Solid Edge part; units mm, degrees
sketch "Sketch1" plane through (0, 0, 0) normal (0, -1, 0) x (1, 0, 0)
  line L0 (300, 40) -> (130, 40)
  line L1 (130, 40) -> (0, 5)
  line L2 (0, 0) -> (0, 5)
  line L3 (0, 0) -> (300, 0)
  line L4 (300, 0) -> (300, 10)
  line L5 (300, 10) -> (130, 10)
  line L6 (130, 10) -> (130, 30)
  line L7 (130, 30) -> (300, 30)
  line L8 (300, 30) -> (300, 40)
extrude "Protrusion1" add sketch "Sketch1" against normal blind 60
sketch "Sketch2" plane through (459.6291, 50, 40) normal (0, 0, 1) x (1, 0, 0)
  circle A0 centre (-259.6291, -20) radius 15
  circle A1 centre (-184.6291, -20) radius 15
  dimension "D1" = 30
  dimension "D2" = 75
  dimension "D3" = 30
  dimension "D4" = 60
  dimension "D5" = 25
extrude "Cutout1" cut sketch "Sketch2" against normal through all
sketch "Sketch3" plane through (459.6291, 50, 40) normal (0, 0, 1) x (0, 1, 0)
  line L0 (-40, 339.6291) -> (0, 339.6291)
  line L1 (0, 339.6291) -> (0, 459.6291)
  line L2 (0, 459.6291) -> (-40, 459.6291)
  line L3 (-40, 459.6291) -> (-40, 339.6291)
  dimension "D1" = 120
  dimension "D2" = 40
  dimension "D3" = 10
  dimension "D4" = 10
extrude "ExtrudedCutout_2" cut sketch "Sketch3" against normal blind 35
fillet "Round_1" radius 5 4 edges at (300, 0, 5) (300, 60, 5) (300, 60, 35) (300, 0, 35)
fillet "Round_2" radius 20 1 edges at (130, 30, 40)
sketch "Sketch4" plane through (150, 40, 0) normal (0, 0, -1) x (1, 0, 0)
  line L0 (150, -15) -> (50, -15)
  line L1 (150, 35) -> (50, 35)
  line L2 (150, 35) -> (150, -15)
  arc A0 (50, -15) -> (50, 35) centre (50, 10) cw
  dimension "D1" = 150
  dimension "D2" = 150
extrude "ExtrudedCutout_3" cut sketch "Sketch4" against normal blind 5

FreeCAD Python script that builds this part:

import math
import FreeCAD as App
import Part
import Sketcher


def edges_at(feature, points):
    """Names of the edges that pass closest to the given points."""
    edges = feature.Shape.Edges
    near = lambda p: min(range(len(edges)), key=lambda i: edges[i].distToShape(Part.Vertex(*p))[0])
    return sorted({f"Edge{near(p) + 1}" for p in points})

doc = App.newDocument("Part")
body = doc.addObject("PartDesign::Body", "Body")

# Sketch on XZ plane
sketch1 = body.newObject("Sketcher::SketchObject", "Sketch")
sketch1.AttachmentSupport = (doc.getObject("XZ_Plane"), [""])
sketch1.MapMode = "FlatFace"
sketch1.addGeometry(Part.LineSegment(App.Vector(300, 30, 0), App.Vector(300, 40, 0)), False)
sketch1.addGeometry(Part.LineSegment(App.Vector(300, 40, 0), App.Vector(130, 40, 0)), False)
sketch1.addGeometry(Part.LineSegment(App.Vector(130, 40, 0), App.Vector(0, 5, 0)), False)
sketch1.addGeometry(Part.LineSegment(App.Vector(0, 5, 0), App.Vector(0, 0, 0)), False)
sketch1.addGeometry(Part.LineSegment(App.Vector(0, 0, 0), App.Vector(300, 0, 0)), False)
sketch1.addGeometry(Part.LineSegment(App.Vector(300, 0, 0), App.Vector(300, 10, 0)), False)
sketch1.addGeometry(Part.LineSegment(App.Vector(300, 10, 0), App.Vector(130, 10, 0)), False)
sketch1.addGeometry(Part.LineSegment(App.Vector(130, 10, 0), App.Vector(130, 30, 0)), False)
sketch1.addGeometry(Part.LineSegment(App.Vector(130, 30, 0), App.Vector(300, 30, 0)), False)
sketch1.addConstraint(Sketcher.Constraint("Coincident", 0, 2, 1, 1))
sketch1.addConstraint(Sketcher.Constraint("Coincident", 1, 2, 2, 1))
sketch1.addConstraint(Sketcher.Constraint("Coincident", 2, 2, 3, 1))
sketch1.addConstraint(Sketcher.Constraint("Coincident", 3, 2, 4, 1))
sketch1.addConstraint(Sketcher.Constraint("Coincident", 4, 2, 5, 1))
sketch1.addConstraint(Sketcher.Constraint("Coincident", 5, 2, 6, 1))
sketch1.addConstraint(Sketcher.Constraint("Coincident", 6, 2, 7, 1))
sketch1.addConstraint(Sketcher.Constraint("Coincident", 7, 2, 8, 1))
sketch1.addConstraint(Sketcher.Constraint("Coincident", 8, 2, 0, 1))
sketch1.addConstraint(Sketcher.Constraint("Vertical", 0))
sketch1.addConstraint(Sketcher.Constraint("Horizontal", 1))
sketch1.addConstraint(Sketcher.Constraint("Vertical", 3))
sketch1.addConstraint(Sketcher.Constraint("Horizontal", 4))
sketch1.addConstraint(Sketcher.Constraint("Vertical", 5))
sketch1.addConstraint(Sketcher.Constraint("Horizontal", 6))
sketch1.addConstraint(Sketcher.Constraint("Vertical", 7))
sketch1.addConstraint(Sketcher.Constraint("Horizontal", 8))
sketch1.addConstraint(Sketcher.Constraint("Coincident", 3, 2, -1, 1))
sketch1.addConstraint(Sketcher.Constraint("Vertical", 0, 2, 4, 2))
sketch1.addConstraint(Sketcher.Constraint("Vertical", 1, 2, 6, 2))
sketch1.addConstraint(Sketcher.Constraint("Equal", 0, 5))
sketch1.addConstraint(Sketcher.Constraint("DistanceX", 1, 2, 1, 1, 170.0))
sketch1.addConstraint(Sketcher.Constraint("DistanceX", 4, 1, 4, 2, 300.0))
sketch1.addConstraint(Sketcher.Constraint("DistanceY", 0, 1, 0, 2, 10.0))
sketch1.addConstraint(Sketcher.Constraint("DistanceY", 3, 2, 3, 1, 5.0))
sketch1.addConstraint(Sketcher.Constraint("DistanceY", 7, 1, 7, 2, 20.0))
pad1 = body.newObject("PartDesign::Pad", "Pad")
pad1.Profile = sketch1
pad1.Length = 60
pad1.Reversed = True

# Sketch on XY plane
sketch2 = body.newObject("Sketcher::SketchObject", "Sketch001")
sketch2.AttachmentSupport = (doc.getObject("XY_Plane"), [""])
sketch2.MapMode = "FlatFace"
sketch2.AttachmentOffset = App.Placement(App.Vector(0, 0, 40), App.Rotation())
sketch2.addGeometry(Part.Circle(App.Vector(200, 30, 0), App.Vector(0, 0, 1), 15), False)
sketch2.addGeometry(Part.Circle(App.Vector(275, 30, 0), App.Vector(0, 0, 1), 15), False)
sketch2.addConstraint(Sketcher.Constraint("Equal", 0, 1))
sketch2.addConstraint(Sketcher.Constraint("Horizontal", 0, 3, 1, 3))
sketch2.addConstraint(Sketcher.Constraint("Diameter", 0, 30.0))
sketch2.addConstraint(Sketcher.Constraint("DistanceX", -1, 1, 0, 3, 200.0))
sketch2.addConstraint(Sketcher.Constraint("DistanceY", -1, 1, 0, 3, 30.0))
sketch2.addConstraint(Sketcher.Constraint("DistanceX", -1, 1, 1, 3, 275.0))
pocket1 = body.newObject("PartDesign::Pocket", "Pocket")
pocket1.Profile = sketch2
pocket1.Type = "ThroughAll"

# Sketch on XY plane
sketch3 = body.newObject("Sketcher::SketchObject", "Sketch002")
sketch3.AttachmentSupport = (doc.getObject("XY_Plane"), [""])
sketch3.MapMode = "FlatFace"
sketch3.AttachmentOffset = App.Placement(App.Vector(0, 0, 40), App.Rotation())
sketch3.addGeometry(Part.LineSegment(App.Vector(0, 10, 0), App.Vector(120, 10, 0)), False)
sketch3.addGeometry(Part.LineSegment(App.Vector(120, 10, 0), App.Vector(120, 50, 0)), False)
sketch3.addGeometry(Part.LineSegment(App.Vector(120, 50, 0), App.Vector(0, 50, 0)), False)
sketch3.addGeometry(Part.LineSegment(App.Vector(0, 50, 0), App.Vector(0, 10, 0)), False)
sketch3.addConstraint(Sketcher.Constraint("Coincident", 0, 2, 1, 1))
sketch3.addConstraint(Sketcher.Constraint("Coincident", 1, 2, 2, 1))
sketch3.addConstraint(Sketcher.Constraint("Coincident", 2, 2, 3, 1))
sketch3.addConstraint(Sketcher.Constraint("Coincident", 3, 2, 0, 1))
sketch3.addConstraint(Sketcher.Constraint("Horizontal", 0))
sketch3.addConstraint(Sketcher.Constraint("Vertical", 1))
sketch3.addConstraint(Sketcher.Constraint("Horizontal", 2))
sketch3.addConstraint(Sketcher.Constraint("Vertical", 3))
sketch3.addConstraint(Sketcher.Constraint("PointOnObject", 2, 2, -2))
sketch3.addConstraint(Sketcher.Constraint("DistanceY", 1, 1, 1, 2, 40.0))
sketch3.addConstraint(Sketcher.Constraint("DistanceX", 0, 1, 0, 2, 120.0))
sketch3.addConstraint(Sketcher.Constraint("DistanceY", -1, 1, 0, 2, 10.0))
pocket2 = body.newObject("PartDesign::Pocket", "Pocket001")
pocket2.Profile = sketch3
pocket2.Length = 35
doc.recompute()

fillet = body.newObject("PartDesign::Fillet", "Fillet")
fillet.Base = (pocket2, edges_at(pocket2, [
    (300, 0, 5),
    (300, 60, 5),
    (300, 60, 35),
    (300, 0, 35),
]))
fillet.Radius = 5
doc.recompute()

fillet2 = body.newObject("PartDesign::Fillet", "Fillet001")
fillet2.Base = (fillet, edges_at(fillet, [(130, 30, 40)]))
fillet2.Radius = 20

# Sketch on XY plane
sketch4 = body.newObject("Sketcher::SketchObject", "Sketch003")
sketch4.AttachmentSupport = (doc.getObject("XY_Plane"), [""])
sketch4.MapMode = "FlatFace"
sketch4.addGeometry(Part.LineSegment(App.Vector(200, 55, 0), App.Vector(300, 55, 0)), False)
sketch4.addGeometry(Part.LineSegment(App.Vector(300, 55, 0), App.Vector(300, 5, 0)), False)
sketch4.addGeometry(Part.LineSegment(App.Vector(300, 5, 0), App.Vector(200, 5, 0)), False)
sketch4.addGeometry(Part.ArcOfCircle(Part.Circle(App.Vector(200, 30, 0), App.Vector(0, 0, 1), 25), math.radians(90), math.radians(270)), False)
sketch4.addConstraint(Sketcher.Constraint("Coincident", 0, 2, 1, 1))
sketch4.addConstraint(Sketcher.Constraint("Coincident", 1, 2, 2, 1))
sketch4.addConstraint(Sketcher.Constraint("Tangent", 2, 2, 3, 2))
sketch4.addConstraint(Sketcher.Constraint("Tangent", 3, 1, 0, 1))
sketch4.addConstraint(Sketcher.Constraint("Horizontal", 0))
sketch4.addConstraint(Sketcher.Constraint("Vertical", 1))
sketch4.addConstraint(Sketcher.Constraint("Horizontal", 2))
sketch4.addConstraint(Sketcher.Constraint("Radius", 3, 25.0))
sketch4.addConstraint(Sketcher.Constraint("DistanceX", 0, 1, 0, 2, 100.0))
sketch4.addConstraint(Sketcher.Constraint("DistanceX", -1, 1, 3, 3, 200.0))
sketch4.addConstraint(Sketcher.Constraint("DistanceY", -1, 1, 3, 3, 30.0))
pocket3 = body.newObject("PartDesign::Pocket", "Pocket002")
pocket3.Profile = sketch4
pocket3.Length = 5
pocket3.Reversed = True

doc.recompute()
